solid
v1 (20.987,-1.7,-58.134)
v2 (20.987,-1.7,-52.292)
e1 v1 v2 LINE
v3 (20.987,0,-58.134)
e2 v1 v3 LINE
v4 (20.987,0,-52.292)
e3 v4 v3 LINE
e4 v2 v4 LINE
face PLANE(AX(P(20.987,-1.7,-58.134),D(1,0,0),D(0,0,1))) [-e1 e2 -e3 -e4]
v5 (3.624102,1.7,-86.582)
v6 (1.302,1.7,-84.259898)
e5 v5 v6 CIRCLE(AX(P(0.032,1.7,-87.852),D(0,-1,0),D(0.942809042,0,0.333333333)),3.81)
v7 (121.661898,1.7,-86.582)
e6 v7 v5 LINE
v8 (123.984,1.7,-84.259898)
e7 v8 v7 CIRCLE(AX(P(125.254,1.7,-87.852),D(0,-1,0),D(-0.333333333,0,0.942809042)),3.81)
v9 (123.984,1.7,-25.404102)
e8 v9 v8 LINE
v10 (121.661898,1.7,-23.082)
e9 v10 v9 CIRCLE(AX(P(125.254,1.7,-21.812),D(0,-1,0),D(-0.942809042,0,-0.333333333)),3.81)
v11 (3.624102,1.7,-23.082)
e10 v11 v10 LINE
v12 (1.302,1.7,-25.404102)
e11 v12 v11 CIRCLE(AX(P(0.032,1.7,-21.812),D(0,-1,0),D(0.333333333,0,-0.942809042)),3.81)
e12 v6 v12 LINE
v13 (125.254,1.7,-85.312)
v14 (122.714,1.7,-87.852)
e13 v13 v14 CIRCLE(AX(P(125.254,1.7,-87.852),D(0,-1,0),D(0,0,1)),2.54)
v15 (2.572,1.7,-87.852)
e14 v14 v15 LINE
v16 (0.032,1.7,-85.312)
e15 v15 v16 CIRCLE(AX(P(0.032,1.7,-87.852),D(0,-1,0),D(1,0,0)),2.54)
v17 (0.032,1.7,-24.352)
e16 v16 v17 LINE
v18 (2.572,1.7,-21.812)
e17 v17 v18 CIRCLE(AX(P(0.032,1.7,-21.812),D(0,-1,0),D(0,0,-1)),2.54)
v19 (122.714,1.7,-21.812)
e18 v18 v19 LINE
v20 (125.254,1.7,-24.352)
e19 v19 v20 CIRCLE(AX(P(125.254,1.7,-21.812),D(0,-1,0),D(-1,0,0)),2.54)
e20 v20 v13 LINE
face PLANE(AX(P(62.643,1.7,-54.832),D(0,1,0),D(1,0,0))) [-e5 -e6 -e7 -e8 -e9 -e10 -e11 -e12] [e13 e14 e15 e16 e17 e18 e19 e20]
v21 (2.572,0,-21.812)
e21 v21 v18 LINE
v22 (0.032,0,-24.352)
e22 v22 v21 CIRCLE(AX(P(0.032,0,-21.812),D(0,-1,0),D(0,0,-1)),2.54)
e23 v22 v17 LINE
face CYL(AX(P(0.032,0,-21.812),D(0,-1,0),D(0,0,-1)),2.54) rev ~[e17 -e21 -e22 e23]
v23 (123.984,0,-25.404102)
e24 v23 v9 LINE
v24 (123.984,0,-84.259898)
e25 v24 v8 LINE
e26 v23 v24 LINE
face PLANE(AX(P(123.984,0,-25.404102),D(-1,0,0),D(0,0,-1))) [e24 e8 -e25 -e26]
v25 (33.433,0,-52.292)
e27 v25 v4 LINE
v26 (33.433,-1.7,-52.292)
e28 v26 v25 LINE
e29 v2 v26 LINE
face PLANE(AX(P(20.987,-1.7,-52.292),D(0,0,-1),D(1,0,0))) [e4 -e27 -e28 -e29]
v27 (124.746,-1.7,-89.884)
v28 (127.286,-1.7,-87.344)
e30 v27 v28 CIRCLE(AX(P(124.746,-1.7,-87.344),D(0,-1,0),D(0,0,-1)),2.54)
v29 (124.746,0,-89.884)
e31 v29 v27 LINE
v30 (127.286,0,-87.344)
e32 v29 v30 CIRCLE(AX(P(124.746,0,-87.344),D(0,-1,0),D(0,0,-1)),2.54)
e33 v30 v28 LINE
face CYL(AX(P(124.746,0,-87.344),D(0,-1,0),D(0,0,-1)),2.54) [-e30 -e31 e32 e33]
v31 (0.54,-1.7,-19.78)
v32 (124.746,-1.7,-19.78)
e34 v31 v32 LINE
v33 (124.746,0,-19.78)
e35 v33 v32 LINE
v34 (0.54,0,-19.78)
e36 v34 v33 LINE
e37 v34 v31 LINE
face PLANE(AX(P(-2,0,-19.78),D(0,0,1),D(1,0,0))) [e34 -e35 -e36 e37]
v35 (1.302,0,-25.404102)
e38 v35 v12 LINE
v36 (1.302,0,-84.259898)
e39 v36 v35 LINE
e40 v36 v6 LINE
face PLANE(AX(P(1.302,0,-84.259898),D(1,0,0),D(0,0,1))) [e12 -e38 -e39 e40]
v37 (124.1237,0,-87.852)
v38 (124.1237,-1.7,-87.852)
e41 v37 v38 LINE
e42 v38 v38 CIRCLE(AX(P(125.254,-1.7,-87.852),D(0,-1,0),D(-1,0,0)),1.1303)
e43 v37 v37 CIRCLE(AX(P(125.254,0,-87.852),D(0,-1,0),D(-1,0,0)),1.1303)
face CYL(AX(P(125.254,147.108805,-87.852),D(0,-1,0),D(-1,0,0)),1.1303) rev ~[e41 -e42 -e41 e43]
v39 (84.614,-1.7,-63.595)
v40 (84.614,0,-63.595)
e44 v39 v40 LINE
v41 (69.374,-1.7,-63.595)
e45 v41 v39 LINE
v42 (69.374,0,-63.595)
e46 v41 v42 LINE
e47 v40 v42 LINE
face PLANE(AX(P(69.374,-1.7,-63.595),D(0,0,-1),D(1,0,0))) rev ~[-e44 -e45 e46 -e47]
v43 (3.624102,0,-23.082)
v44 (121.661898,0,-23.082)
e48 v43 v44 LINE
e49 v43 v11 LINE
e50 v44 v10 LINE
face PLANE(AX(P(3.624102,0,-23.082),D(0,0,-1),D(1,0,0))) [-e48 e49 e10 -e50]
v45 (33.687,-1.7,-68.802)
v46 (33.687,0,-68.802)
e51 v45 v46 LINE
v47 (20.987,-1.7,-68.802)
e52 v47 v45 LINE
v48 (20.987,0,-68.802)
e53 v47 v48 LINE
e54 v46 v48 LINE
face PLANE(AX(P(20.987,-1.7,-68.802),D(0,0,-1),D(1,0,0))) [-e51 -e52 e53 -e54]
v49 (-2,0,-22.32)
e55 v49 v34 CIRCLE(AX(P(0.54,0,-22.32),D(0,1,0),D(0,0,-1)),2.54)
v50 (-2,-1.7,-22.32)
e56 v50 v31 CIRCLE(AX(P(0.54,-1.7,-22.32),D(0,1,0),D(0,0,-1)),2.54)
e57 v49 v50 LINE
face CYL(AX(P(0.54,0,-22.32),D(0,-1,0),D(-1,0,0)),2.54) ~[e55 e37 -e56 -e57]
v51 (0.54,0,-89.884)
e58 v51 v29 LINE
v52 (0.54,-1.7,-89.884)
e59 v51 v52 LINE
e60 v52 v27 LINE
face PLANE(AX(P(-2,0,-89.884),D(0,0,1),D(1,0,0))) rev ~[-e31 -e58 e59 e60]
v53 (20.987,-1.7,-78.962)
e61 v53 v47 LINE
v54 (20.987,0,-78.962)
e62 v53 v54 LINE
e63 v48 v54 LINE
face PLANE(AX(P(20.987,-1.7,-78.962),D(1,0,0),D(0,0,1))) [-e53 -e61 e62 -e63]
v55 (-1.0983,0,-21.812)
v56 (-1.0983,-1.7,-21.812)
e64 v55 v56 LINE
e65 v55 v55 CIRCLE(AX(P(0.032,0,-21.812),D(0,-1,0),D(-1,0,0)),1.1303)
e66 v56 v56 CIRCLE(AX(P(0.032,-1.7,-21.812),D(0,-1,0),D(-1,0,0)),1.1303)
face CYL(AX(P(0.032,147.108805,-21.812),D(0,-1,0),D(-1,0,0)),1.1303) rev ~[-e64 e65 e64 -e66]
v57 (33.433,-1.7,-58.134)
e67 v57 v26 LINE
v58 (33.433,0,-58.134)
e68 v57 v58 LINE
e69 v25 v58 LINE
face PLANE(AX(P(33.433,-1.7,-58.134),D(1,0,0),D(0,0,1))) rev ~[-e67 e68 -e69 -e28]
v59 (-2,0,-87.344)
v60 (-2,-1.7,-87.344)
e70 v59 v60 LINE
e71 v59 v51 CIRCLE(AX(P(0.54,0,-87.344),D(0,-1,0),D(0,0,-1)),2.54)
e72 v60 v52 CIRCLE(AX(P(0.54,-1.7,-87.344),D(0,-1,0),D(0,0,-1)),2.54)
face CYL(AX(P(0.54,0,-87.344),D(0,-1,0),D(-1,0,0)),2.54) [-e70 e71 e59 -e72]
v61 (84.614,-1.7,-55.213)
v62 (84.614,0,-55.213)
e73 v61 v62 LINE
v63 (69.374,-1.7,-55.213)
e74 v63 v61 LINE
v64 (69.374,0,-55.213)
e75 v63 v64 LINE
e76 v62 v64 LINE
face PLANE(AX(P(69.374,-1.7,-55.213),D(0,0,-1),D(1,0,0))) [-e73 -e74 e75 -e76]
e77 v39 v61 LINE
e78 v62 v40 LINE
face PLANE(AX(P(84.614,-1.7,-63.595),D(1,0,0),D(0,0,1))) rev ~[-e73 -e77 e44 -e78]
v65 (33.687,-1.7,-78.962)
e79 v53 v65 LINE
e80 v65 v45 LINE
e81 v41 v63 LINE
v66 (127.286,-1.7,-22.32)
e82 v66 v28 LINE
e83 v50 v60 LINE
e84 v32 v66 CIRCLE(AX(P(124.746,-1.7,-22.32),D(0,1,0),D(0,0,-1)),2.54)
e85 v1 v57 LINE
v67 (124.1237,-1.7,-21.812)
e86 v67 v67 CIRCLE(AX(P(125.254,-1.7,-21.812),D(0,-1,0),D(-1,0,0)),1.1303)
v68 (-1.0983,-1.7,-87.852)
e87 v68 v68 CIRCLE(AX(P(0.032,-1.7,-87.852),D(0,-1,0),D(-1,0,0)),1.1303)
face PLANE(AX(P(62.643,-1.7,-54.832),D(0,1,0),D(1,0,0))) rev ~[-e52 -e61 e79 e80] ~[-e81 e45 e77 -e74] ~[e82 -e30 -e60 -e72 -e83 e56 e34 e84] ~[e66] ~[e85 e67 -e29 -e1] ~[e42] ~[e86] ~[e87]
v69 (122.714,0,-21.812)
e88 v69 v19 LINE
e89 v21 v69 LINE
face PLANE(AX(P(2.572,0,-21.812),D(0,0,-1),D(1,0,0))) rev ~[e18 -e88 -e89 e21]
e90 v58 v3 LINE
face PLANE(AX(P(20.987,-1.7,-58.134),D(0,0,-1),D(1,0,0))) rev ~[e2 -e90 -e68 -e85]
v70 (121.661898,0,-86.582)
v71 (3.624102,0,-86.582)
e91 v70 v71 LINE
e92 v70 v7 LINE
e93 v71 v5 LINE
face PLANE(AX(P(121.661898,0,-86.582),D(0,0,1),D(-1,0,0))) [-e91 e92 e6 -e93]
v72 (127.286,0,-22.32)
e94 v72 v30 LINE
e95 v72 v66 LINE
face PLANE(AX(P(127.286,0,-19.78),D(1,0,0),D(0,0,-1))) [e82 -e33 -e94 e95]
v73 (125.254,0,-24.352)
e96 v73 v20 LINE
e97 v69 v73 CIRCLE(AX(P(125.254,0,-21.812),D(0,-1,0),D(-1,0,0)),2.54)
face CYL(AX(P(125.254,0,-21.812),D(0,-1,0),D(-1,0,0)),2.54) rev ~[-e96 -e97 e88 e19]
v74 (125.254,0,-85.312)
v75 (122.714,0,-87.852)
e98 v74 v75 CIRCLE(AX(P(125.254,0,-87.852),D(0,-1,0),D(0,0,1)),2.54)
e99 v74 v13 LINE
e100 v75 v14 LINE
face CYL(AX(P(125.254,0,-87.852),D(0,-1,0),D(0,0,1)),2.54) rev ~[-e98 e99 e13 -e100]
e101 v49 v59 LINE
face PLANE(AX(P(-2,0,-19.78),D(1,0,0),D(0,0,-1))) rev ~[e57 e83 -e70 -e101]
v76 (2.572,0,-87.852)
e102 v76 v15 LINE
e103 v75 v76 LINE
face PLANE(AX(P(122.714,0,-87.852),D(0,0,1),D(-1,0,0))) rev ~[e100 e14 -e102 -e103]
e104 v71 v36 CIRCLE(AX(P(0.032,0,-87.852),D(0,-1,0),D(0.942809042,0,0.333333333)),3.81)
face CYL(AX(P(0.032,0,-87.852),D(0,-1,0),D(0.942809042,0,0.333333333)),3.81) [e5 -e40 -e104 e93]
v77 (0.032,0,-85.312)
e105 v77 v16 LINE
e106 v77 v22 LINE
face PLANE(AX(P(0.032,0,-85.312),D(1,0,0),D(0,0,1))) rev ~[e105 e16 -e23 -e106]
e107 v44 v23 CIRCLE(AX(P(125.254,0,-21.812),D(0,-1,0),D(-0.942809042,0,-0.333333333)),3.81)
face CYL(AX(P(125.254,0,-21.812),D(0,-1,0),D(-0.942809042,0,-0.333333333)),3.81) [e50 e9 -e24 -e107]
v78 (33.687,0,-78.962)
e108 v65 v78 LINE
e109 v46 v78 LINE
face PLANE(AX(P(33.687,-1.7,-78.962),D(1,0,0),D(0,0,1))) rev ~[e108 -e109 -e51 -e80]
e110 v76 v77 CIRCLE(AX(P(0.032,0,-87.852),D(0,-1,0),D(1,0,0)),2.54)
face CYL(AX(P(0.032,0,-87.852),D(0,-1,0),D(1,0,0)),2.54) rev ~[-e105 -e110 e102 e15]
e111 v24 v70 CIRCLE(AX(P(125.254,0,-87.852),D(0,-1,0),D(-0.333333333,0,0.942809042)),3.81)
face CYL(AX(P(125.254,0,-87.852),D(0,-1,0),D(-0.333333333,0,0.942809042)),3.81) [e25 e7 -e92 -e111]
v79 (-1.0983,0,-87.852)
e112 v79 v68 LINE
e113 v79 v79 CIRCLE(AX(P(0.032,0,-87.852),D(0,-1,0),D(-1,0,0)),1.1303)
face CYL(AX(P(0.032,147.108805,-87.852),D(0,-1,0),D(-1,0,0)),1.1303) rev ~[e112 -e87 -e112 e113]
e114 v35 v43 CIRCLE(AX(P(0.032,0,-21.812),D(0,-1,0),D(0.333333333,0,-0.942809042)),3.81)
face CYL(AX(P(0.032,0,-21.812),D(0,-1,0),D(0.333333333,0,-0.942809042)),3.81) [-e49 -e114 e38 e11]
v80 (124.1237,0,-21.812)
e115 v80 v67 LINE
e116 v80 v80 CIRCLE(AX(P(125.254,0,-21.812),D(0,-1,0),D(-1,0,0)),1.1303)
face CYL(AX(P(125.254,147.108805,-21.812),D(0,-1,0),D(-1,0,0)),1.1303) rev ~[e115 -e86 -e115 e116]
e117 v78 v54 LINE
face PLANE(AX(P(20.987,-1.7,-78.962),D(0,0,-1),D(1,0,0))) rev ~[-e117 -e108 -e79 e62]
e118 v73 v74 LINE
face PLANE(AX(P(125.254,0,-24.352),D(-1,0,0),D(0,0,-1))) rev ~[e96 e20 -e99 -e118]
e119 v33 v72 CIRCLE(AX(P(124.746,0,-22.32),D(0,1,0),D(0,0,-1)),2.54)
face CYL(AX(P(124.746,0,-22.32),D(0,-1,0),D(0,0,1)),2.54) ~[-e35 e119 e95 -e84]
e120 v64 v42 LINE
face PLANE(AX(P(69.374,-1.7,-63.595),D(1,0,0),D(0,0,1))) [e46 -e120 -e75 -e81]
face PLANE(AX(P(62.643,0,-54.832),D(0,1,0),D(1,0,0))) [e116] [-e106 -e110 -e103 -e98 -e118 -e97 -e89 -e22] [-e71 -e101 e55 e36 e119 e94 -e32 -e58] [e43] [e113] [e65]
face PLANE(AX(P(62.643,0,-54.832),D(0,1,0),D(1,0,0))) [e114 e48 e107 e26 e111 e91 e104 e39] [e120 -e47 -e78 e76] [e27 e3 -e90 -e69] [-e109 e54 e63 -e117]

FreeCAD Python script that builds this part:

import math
import FreeCAD as App
import Part
import Sketcher
Q = App.Units.Quantity


def edges_at(feature, points):
    """Names of the edges that pass closest to the given points."""
    edges = feature.Shape.Edges
    near = lambda p: min(range(len(edges)), key=lambda i: edges[i].distToShape(Part.Vertex(*p))[0])
    return sorted({f"Edge{near(p) + 1}" for p in points})

doc = App.newDocument("Part")
params = doc.addObject("Spreadsheet::Sheet", "Params")
for row, (alias, value) in enumerate([
    ("sketch1_width", "5.09 in"),
    ("sketch1_height", "2.76 in"),
    ("pad1_length", "1.7 mm"),
    ("sketch2_radius", "0.1 in"),
    ("sketch2_radius2", "0.15 in"),
    ("sketch2_height", "2.4 in"),
    ("sketch2_width", "4.73 in"),
    ("pad2_length", "1.7 mm"),
    ("fillet_radius", "0.1 in"),
    ("sketch3_diameter", "0.089 in"),
    ("hole_diameter", "0.089 in"),
    ("sketch4_width", "0.5 in"),
    ("sketch4_width2", "0.6 in"),
    ("sketch4_height", "0.4 in"),
    ("sketch4_width3", "0.49 in"),
    ("sketch4_height2", "0.33 in"),
    ("pocket1_length", "0.1 in"),
], start=1):
    params.set(f"A{row}", alias)
    params.set(f"B{row}", "=" + value)
    params.setAlias(f"B{row}", alias)

body = doc.addObject("PartDesign::Body", "Body")

# Sketch on XZ plane
sketch1 = body.newObject("Sketcher::SketchObject", "Sketch")
sketch1.AttachmentSupport = (doc.getObject("XZ_Plane"), [""])
sketch1.MapMode = "FlatFace"
sketch1.addGeometry([
    Part.LineSegment(App.Vector(-2, -90, 0), App.Vector(-2, -20, 0)),
    Part.LineSegment(App.Vector(-2, -20, 0), App.Vector(127, -20, 0)),
    Part.LineSegment(App.Vector(127, -20, 0), App.Vector(127, -90, 0)),
    Part.LineSegment(App.Vector(127, -90, 0), App.Vector(-2, -90, 0)),
], False)
sketch1.addConstraint([
    Sketcher.Constraint("Coincident", 0, 2, 1, 1),
    Sketcher.Constraint("Coincident", 1, 2, 2, 1),
    Sketcher.Constraint("Coincident", 2, 2, 3, 1),
    Sketcher.Constraint("Coincident", 3, 2, 0, 1),
    Sketcher.Constraint("Vertical", 0),
    Sketcher.Constraint("Horizontal", 1),
    Sketcher.Constraint("Vertical", 2),
    Sketcher.Constraint("Horizontal", 3),
    Sketcher.Constraint("DistanceX", 1, 1, 1, 2, Q("5.09 in")),
    Sketcher.Constraint("DistanceY", 0, 1, 0, 2, Q("2.76 in")),
    Sketcher.Constraint("DistanceX", 0, 2, -1, 1, Q("2 mm")),
    Sketcher.Constraint("DistanceY", 0, 2, -1, 1, Q("19.78 mm")),
])
sketch1.setExpression("Constraints[8]", "Params.sketch1_width")
sketch1.setExpression("Constraints[9]", "Params.sketch1_height")
pad1 = body.newObject("PartDesign::Pad", "Pad")
pad1.Profile = sketch1
pad1.setExpression("Length", "Params.pad1_length")

# Sketch on XZ plane
sketch2 = body.newObject("Sketcher::SketchObject", "Sketch001")
sketch2.AttachmentSupport = (doc.getObject("XZ_Plane"), [""])
sketch2.MapMode = "FlatFace"
sketch2.addGeometry([
    Part.LineSegment(App.Vector(2.6, -21.8, 0), App.Vector(122.7, -21.8, 0)),  # 0
    Part.ArcOfCircle(Part.Circle(App.Vector(125.3, -21.8, 0), App.Vector(0, 0, 1), 2.5), math.radians(-180), math.radians(-90)),  # 1
    Part.LineSegment(App.Vector(125.3, -24.4, 0), App.Vector(125.3, -85.3, 0)),  # 2
    Part.ArcOfCircle(Part.Circle(App.Vector(125.3, -87.9, 0), App.Vector(0, 0, 1), 2.5), math.radians(90), math.radians(180)),  # 3
    Part.LineSegment(App.Vector(122.7, -87.9, 0), App.Vector(2.6, -87.9, 0)),  # 4
    Part.ArcOfCircle(Part.Circle(App.Vector(0, -87.9, 0), App.Vector(0, 0, 1), 2.5), math.radians(0), math.radians(90)),  # 5
    Part.LineSegment(App.Vector(0, -85.3, 0), App.Vector(0, -24.4, 0)),  # 6
    Part.ArcOfCircle(Part.Circle(App.Vector(0, -21.8, 0), App.Vector(0, 0, 1), 2.5), math.radians(-90), math.radians(0)),  # 7
    Part.LineSegment(App.Vector(121.7, -23.1, 0), App.Vector(3.6, -23.1, 0)),  # 8
    Part.ArcOfCircle(Part.Circle(App.Vector(0, -21.8, 0), App.Vector(0, 0, 1), 3.8), math.radians(-71), math.radians(-19)),  # 9
    Part.LineSegment(App.Vector(1.3, -25.4, 0), App.Vector(1.3, -84.3, 0)),  # 10
    Part.ArcOfCircle(Part.Circle(App.Vector(0, -87.9, 0), App.Vector(0, 0, 1), 3.8), math.radians(19), math.radians(71)),  # 11
    Part.LineSegment(App.Vector(3.6, -86.6, 0), App.Vector(121.7, -86.6, 0)),  # 12
    Part.ArcOfCircle(Part.Circle(App.Vector(125.3, -87.9, 0), App.Vector(0, 0, 1), 3.8), math.radians(109), math.radians(161)),  # 13
    Part.LineSegment(App.Vector(124, -84.3, 0), App.Vector(124, -25.4, 0)),  # 14
    Part.ArcOfCircle(Part.Circle(App.Vector(125.3, -21.8, 0), App.Vector(0, 0, 1), 3.8), math.radians(-161), math.radians(-109)),  # 15
], False)
sketch2.addConstraint([
    Sketcher.Constraint("Coincident", 0, 2, 1, 1),
    Sketcher.Constraint("Coincident", 1, 2, 2, 1),
    Sketcher.Constraint("Coincident", 2, 2, 3, 1),
    Sketcher.Constraint("Coincident", 3, 2, 4, 1),
    Sketcher.Constraint("Coincident", 4, 2, 5, 1),
    Sketcher.Constraint("Coincident", 5, 2, 6, 1),
    Sketcher.Constraint("Coincident", 6, 2, 7, 1),
    Sketcher.Constraint("Coincident", 7, 2, 0, 1),
    Sketcher.Constraint("Coincident", 8, 2, 9, 2),
    Sketcher.Constraint("Coincident", 9, 1, 10, 1),
    Sketcher.Constraint("Coincident", 10, 2, 11, 2),
    Sketcher.Constraint("Coincident", 11, 1, 12, 1),
    Sketcher.Constraint("Coincident", 12, 2, 13, 2),
    Sketcher.Constraint("Coincident", 13, 1, 14, 1),
    Sketcher.Constraint("Coincident", 14, 2, 15, 2),
    Sketcher.Constraint("Coincident", 15, 1, 8, 1),
    Sketcher.Constraint("Horizontal", 0),
    Sketcher.Constraint("Vertical", 2),
    Sketcher.Constraint("Horizontal", 4),
    Sketcher.Constraint("Vertical", 6),
    Sketcher.Constraint("Horizontal", 8),
    Sketcher.Constraint("Vertical", 10),
    Sketcher.Constraint("Horizontal", 12),
    Sketcher.Constraint("Vertical", 14),
    Sketcher.Constraint("Coincident", 9, 3, 7, 3),
    Sketcher.Constraint("Coincident", 11, 3, 5, 3),
    Sketcher.Constraint("Coincident", 13, 3, 3, 3),
    Sketcher.Constraint("Coincident", 15, 3, 1, 3),
    Sketcher.Constraint("Equal", 1, 3),
    Sketcher.Constraint("Equal", 3, 5),
    Sketcher.Constraint("Equal", 5, 7),
    Sketcher.Constraint("Equal", 9, 11),
    Sketcher.Constraint("Equal", 11, 13),
    Sketcher.Constraint("Equal", 13, 15),
    Sketcher.Constraint("Horizontal", 3, 3, 5, 3),
    Sketcher.Constraint("Horizontal", 1, 3, 7, 3),
    Sketcher.Constraint("Horizontal", 15, 3, 0, 2),
    Sketcher.Constraint("Horizontal", 13, 3, 3, 2),
    Sketcher.Constraint("Horizontal", 10, 2, 13, 1),
    Sketcher.Constraint("Horizontal", 9, 1, 14, 2),
    Sketcher.Constraint("Vertical", 1, 3, 3, 3),
    Sketcher.Constraint("Vertical", 15, 3, 1, 2),
    Sketcher.Constraint("Vertical", 11, 3, 5, 2),
    Sketcher.Constraint("Vertical", 8, 2, 11, 1),
    Sketcher.Constraint("Radius", 1, Q("0.1 in")),
    Sketcher.Constraint("Radius", 9, Q("0.15 in")),
    Sketcher.Constraint("DistanceY", 2, 2, 2, 1, Q("2.4 in")),
    Sketcher.Constraint("DistanceX", 0, 1, 0, 2, Q("4.73 in")),
    Sketcher.Constraint("DistanceY", 8, 2, 7, 2, Q("0.05 in")),
    Sketcher.Constraint("DistanceX", 6, 2, 9, 1, Q("0.05 in")),
    Sketcher.Constraint("DistanceX", -1, 1, 1, 3, Q("125.254 mm")),
    Sketcher.Constraint("DistanceY", 1, 3, -1, 1, Q("21.812 mm")),
])
sketch2.setExpression("Constraints[44]", "Params.sketch2_radius")
sketch2.setExpression("Constraints[45]", "Params.sketch2_radius2")
sketch2.setExpression("Constraints[46]", "Params.sketch2_height")
sketch2.setExpression("Constraints[47]", "Params.sketch2_width")
pad2 = body.newObject("PartDesign::Pad", "Pad001")
pad2.Profile = sketch2
pad2.setExpression("Length", "Params.pad2_length")
pad2.Reversed = True
doc.recompute()

fillet = body.newObject("PartDesign::Fillet", "Fillet")
fillet.Base = (pad2, edges_at(pad2, [
    (-2, -0.85, -89.884),
    (-2, -0.85, -19.78),
    (127.286, -0.85, -19.78),
    (127.286, -0.85, -89.884),
]))
fillet.setExpression("Radius", "Params.fillet_radius")

# Sketch on XZ plane
sketch3 = body.newObject("Sketcher::SketchObject", "Sketch002")
sketch3.AttachmentSupport = (doc.getObject("XZ_Plane"), [""])
sketch3.MapMode = "FlatFace"
sketch3.addGeometry([
    Part.Circle(App.Vector(0, -21.8, 0), App.Vector(0, 0, 1), 1.1),
    Part.Circle(App.Vector(125.3, -21.8, 0), App.Vector(0, 0, 1), 1.1),
    Part.Circle(App.Vector(125.3, -87.9, 0), App.Vector(0, 0, 1), 1.1),
    Part.Circle(App.Vector(0, -87.9, 0), App.Vector(0, 0, 1), 1.1),
], False)
sketch3.addConstraint([
    Sketcher.Constraint("Equal", 0, 1),
    Sketcher.Constraint("Equal", 1, 2),
    Sketcher.Constraint("Equal", 2, 3),
    Sketcher.Constraint("Horizontal", 0, 3, 1, 3),
    Sketcher.Constraint("Horizontal", 2, 3, 3, 3),
    Sketcher.Constraint("Vertical", 1, 3, 2, 3),
    Sketcher.Constraint("Vertical", 0, 3, 3, 3),
    Sketcher.Constraint("Diameter", 0, Q("0.089 in")),
    Sketcher.Constraint("DistanceY", 2, 3, 1, 3, Q("2.6 in")),
    Sketcher.Constraint("DistanceX", 0, 3, 1, 3, Q("4.93 in")),
    Sketcher.Constraint("DistanceX", -1, 1, 0, 3, Q("0.032 mm")),
    Sketcher.Constraint("DistanceY", 0, 3, -1, 1, Q("21.812 mm")),
])
sketch3.setExpression("Constraints[7]", "Params.sketch3_diameter")
doc.recompute()
hole = body.newObject("PartDesign::Hole", "Hole")
hole.Profile = sketch3
hole.ThreadType = "None"
hole.setExpression("Diameter", "Params.hole_diameter")
hole.DepthType = "ThroughAll"
hole.Reversed = True

# Sketch on XZ plane
sketch4 = body.newObject("Sketcher::SketchObject", "Sketch003")
sketch4.AttachmentSupport = (doc.getObject("XZ_Plane"), [""])
sketch4.MapMode = "FlatFace"
sketch4.AttachmentOffset = App.Placement(App.Vector(0, 0, 1.7), App.Rotation())
sketch4.addGeometry([
    Part.LineSegment(App.Vector(21, -69, 0), App.Vector(21, -79, 0)),  # 0
    Part.LineSegment(App.Vector(21, -79, 0), App.Vector(34, -79, 0)),  # 1
    Part.LineSegment(App.Vector(34, -79, 0), App.Vector(34, -69, 0)),  # 2
    Part.LineSegment(App.Vector(34, -69, 0), App.Vector(21, -69, 0)),  # 3
    Part.LineSegment(App.Vector(69, -55, 0), App.Vector(69, -64, 0)),  # 4
    Part.LineSegment(App.Vector(69, -64, 0), App.Vector(85, -64, 0)),  # 5
    Part.LineSegment(App.Vector(85, -64, 0), App.Vector(85, -55, 0)),  # 6
    Part.LineSegment(App.Vector(85, -55, 0), App.Vector(69, -55, 0)),  # 7
    Part.LineSegment(App.Vector(21, -52, 0), App.Vector(21, -58, 0)),  # 8
    Part.LineSegment(App.Vector(21, -58, 0), App.Vector(33, -58, 0)),  # 9
    Part.LineSegment(App.Vector(33, -58, 0), App.Vector(33, -52, 0)),  # 10
    Part.LineSegment(App.Vector(33, -52, 0), App.Vector(21, -52, 0)),  # 11
], False)
sketch4.addConstraint([
    Sketcher.Constraint("Coincident", 0, 2, 1, 1),
    Sketcher.Constraint("Coincident", 1, 2, 2, 1),
    Sketcher.Constraint("Coincident", 2, 2, 3, 1),
    Sketcher.Constraint("Coincident", 3, 2, 0, 1),
    Sketcher.Constraint("Coincident", 4, 2, 5, 1),
    Sketcher.Constraint("Coincident", 5, 2, 6, 1),
    Sketcher.Constraint("Coincident", 6, 2, 7, 1),
    Sketcher.Constraint("Coincident", 7, 2, 4, 1),
    Sketcher.Constraint("Coincident", 8, 2, 9, 1),
    Sketcher.Constraint("Coincident", 9, 2, 10, 1),
    Sketcher.Constraint("Coincident", 10, 2, 11, 1),
    Sketcher.Constraint("Coincident", 11, 2, 8, 1),
    Sketcher.Constraint("Vertical", 0),
    Sketcher.Constraint("Horizontal", 1),
    Sketcher.Constraint("Vertical", 2),
    Sketcher.Constraint("Horizontal", 3),
    Sketcher.Constraint("Vertical", 4),
    Sketcher.Constraint("Horizontal", 5),
    Sketcher.Constraint("Vertical", 6),
    Sketcher.Constraint("Horizontal", 7),
    Sketcher.Constraint("Vertical", 8),
    Sketcher.Constraint("Horizontal", 9),
    Sketcher.Constraint("Vertical", 10),
    Sketcher.Constraint("Horizontal", 11),
    Sketcher.Constraint("Vertical", 3, 2, 8, 2),
    Sketcher.Constraint("DistanceX", 1, 1, 1, 2, Q("0.5 in")),
    Sketcher.Constraint("DistanceX", 5, 1, 5, 2, Q("0.6 in")),
    Sketcher.Constraint("DistanceY", 0, 2, 0, 1, Q("0.4 in")),
    Sketcher.Constraint("DistanceX", 9, 1, 9, 2, Q("0.49 in")),
    Sketcher.Constraint("DistanceY", 4, 2, 4, 1, Q("0.33 in")),
    Sketcher.Constraint("DistanceY", 8, 2, 8, 1, Q("0.23 in")),
    Sketcher.Constraint("DistanceY", 3, 2, 8, 2, Q("0.42 in")),
    Sketcher.Constraint("DistanceX", 2, 2, 4, 2, Q("1.405 in")),
    Sketcher.Constraint("DistanceY", 2, 2, 4, 2, Q("0.205 in")),
    Sketcher.Constraint("DistanceX", -1, 1, 0, 2, Q("20.987 mm")),
    Sketcher.Constraint("DistanceY", 0, 2, -1, 1, Q("78.962 mm")),
])
sketch4.setExpression("Constraints[25]", "Params.sketch4_width")
sketch4.setExpression("Constraints[26]", "Params.sketch4_width2")
sketch4.setExpression("Constraints[27]", "Params.sketch4_height")
sketch4.setExpression("Constraints[28]", "Params.sketch4_width3")
sketch4.setExpression("Constraints[29]", "Params.sketch4_height2")
pocket1 = body.newObject("PartDesign::Pocket", "Pocket")
pocket1.Profile = sketch4
pocket1.setExpression("Length", "Params.pocket1_length")

doc.recompute()
